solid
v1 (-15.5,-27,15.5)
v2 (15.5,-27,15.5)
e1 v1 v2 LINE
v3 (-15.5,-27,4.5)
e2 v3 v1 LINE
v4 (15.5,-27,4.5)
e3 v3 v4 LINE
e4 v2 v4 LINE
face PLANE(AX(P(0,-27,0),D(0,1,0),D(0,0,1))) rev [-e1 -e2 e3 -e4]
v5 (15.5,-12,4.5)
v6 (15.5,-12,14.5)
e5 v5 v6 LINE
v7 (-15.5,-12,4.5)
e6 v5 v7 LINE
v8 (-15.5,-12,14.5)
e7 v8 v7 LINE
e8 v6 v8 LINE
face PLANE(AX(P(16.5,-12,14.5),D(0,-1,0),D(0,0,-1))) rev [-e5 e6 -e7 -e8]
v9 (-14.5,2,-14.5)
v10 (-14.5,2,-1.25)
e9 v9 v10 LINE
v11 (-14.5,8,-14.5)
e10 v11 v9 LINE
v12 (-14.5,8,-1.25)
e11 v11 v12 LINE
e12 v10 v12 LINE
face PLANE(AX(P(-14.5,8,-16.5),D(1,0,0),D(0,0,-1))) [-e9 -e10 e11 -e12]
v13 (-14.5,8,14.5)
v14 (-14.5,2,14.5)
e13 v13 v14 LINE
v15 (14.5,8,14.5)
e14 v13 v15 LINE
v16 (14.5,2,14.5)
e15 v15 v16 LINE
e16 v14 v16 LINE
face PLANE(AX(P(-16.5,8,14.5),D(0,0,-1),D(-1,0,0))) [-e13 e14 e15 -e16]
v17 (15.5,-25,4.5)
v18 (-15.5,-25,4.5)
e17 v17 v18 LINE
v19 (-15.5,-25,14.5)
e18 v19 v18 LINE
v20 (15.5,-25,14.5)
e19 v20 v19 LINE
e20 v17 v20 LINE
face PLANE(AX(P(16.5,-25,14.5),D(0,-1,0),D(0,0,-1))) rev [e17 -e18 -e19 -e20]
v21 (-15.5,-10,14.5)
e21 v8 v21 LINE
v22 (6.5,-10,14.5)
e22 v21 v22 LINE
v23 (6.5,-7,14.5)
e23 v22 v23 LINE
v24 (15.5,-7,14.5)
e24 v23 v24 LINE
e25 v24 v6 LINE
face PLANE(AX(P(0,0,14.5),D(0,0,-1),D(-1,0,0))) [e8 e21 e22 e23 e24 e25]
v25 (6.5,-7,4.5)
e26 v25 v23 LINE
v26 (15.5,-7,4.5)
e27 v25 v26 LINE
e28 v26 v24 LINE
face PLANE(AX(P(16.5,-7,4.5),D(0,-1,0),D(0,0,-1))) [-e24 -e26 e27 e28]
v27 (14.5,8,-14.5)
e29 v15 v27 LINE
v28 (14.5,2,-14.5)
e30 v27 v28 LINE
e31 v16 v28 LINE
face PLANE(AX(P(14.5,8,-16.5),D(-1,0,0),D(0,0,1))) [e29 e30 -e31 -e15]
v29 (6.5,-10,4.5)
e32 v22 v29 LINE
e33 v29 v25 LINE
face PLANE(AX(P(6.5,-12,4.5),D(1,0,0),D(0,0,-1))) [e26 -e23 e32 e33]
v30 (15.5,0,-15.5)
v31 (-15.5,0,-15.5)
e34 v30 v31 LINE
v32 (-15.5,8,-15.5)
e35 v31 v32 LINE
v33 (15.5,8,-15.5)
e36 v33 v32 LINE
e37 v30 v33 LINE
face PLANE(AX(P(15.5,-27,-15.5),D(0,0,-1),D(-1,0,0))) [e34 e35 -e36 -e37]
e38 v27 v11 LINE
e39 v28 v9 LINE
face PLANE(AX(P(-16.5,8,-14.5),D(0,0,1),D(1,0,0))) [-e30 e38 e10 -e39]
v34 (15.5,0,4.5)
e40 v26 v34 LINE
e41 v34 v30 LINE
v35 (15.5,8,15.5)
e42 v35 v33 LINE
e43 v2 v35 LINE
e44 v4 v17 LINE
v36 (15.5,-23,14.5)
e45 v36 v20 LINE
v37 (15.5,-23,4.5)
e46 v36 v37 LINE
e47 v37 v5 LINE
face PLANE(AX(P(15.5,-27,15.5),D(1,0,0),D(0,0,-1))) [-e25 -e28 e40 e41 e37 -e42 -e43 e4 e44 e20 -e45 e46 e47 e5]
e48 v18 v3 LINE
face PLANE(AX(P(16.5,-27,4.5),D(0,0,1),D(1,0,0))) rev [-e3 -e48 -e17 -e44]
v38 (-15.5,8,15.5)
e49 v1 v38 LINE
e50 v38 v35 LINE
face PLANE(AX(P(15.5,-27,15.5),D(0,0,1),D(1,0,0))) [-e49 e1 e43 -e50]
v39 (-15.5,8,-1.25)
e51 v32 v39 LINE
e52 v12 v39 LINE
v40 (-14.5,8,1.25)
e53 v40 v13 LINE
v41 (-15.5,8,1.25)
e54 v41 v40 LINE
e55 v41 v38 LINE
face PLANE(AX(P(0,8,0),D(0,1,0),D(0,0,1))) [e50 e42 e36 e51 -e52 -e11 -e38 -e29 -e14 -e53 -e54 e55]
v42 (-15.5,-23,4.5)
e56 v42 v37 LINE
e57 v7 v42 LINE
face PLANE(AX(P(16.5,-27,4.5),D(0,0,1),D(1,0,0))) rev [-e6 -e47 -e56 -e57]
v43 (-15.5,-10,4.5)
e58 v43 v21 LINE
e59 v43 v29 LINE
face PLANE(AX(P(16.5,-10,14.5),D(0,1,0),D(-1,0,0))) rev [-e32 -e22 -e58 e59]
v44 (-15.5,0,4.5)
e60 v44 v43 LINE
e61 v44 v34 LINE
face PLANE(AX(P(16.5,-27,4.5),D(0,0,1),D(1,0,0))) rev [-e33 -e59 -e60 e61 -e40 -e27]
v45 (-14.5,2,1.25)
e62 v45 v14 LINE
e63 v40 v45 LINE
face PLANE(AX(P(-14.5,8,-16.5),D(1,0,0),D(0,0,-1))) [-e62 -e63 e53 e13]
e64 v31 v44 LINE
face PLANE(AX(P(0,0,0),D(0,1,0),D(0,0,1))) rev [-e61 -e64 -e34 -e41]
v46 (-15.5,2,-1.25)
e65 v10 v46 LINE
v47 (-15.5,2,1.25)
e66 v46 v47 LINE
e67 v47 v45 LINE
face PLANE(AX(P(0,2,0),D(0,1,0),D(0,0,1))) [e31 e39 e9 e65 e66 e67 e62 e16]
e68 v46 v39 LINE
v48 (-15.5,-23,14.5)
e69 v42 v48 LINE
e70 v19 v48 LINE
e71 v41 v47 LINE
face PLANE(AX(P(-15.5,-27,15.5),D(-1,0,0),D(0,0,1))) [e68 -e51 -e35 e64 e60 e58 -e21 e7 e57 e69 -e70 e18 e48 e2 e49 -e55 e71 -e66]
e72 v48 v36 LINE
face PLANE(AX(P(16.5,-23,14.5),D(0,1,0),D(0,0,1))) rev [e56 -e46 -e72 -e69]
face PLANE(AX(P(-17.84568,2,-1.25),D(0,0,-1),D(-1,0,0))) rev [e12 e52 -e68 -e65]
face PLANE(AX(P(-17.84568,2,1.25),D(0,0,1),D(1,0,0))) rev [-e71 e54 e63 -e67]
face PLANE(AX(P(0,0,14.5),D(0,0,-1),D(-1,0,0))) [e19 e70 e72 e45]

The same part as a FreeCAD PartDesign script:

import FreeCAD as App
import Part
import Sketcher
from FreeCAD import Vector
Q = App.Units.Quantity


def faces_at(feature, points):
    """Names of the faces that lie closest to the given points."""
    faces = feature.Shape.Faces
    near = lambda p: min(range(len(faces)), key=lambda i: faces[i].distToShape(Part.Vertex(*p))[0])
    return sorted({f"Face{near(p) + 1}" for p in points})


def add_polygon(sketch, points):
    """Adds a closed chain of lines whose ends are joined by coincident constraints."""
    first, n = sketch.GeometryCount, len(points)
    for a, b in zip(points, points[1:] + points[:1]):
        sketch.addGeometry(Part.LineSegment(App.Vector(*a, 0), App.Vector(*b, 0)), False)
    for i in range(n):
        sketch.addConstraint(Sketcher.Constraint("Coincident", first + i, 2, first + (i + 1) % n, 1))

doc = App.newDocument("Part")
body = doc.addObject("PartDesign::Body", "Body")

# Sketch on XZ plane
sketch1 = doc.addObject("Sketcher::SketchObject", "Sketch")
body.addObject(sketch1)
sketch1.AttachmentSupport = (doc.XZ_Plane, [""])
sketch1.MapMode = "FlatFace"
add_polygon(sketch1, [(-16.5, -16.5), (-16.5, 16.5), (16.5, 16.5), (16.5, -16.5)])  # lines 0-3
sketch1.addConstraint(Sketcher.Constraint("Vertical", 0))
sketch1.addConstraint(Sketcher.Constraint("Horizontal", 1))
sketch1.addConstraint(Sketcher.Constraint("Vertical", 2))
sketch1.addConstraint(Sketcher.Constraint("Horizontal", 3))
sketch1.addConstraint(Sketcher.Constraint("Symmetric", 0, 2, 2, 2, -1, 1))
sketch1.addConstraint(Sketcher.Constraint("Equal", 3, 0))
sketch1.addConstraint(Sketcher.Constraint("DistanceX", 1, 1, 1, 2, Q("33 mm")))
pad1 = doc.addObject("PartDesign::Pad", "Pad")
body.addObject(pad1)
pad1.Profile = sketch1
pad1.Length = 8
pad1.Reversed = True
doc.recompute()

thickness = doc.addObject("PartDesign::Thickness", "Thickness")
body.addObject(thickness)
thickness.Base = (pad1, faces_at(pad1, [(0, 8, 0)]))
thickness.Value = 2
thickness.Reversed = True
thickness.Join = "Intersection"

# Sketch on XZ plane
sketch2 = doc.addObject("Sketcher::SketchObject", "Sketch001")
body.addObject(sketch2)
sketch2.AttachmentSupport = (doc.XZ_Plane, [""])
sketch2.MapMode = "FlatFace"
sketch2.AttachmentOffset = App.Placement(Vector(0, 0, -8), App.Rotation())
add_polygon(sketch2, [(-17.84568, -1.25), (-17.84568, 1.25), (-13.423531, 1.25), (-13.423531, -1.25)])  # lines 0-3
sketch2.addConstraint(Sketcher.Constraint("Vertical", 0))
sketch2.addConstraint(Sketcher.Constraint("Horizontal", 1))
sketch2.addConstraint(Sketcher.Constraint("Vertical", 2))
sketch2.addConstraint(Sketcher.Constraint("Horizontal", 3))
sketch2.addConstraint(Sketcher.Constraint("DistanceY", 0, 1, 0, 2, Q("2.5 mm")))
sketch2.addConstraint(Sketcher.Constraint("DistanceY", -1, 1, 0, 2, Q("1.25 mm")))
sketch2.addConstraint(Sketcher.Constraint("DistanceX", 1, 1, 1, 2, Q("4.422149 mm")))
sketch2.addConstraint(Sketcher.Constraint("DistanceX", 0, 2, -1, 1, Q("17.84568 mm")))
pocket1 = doc.addObject("PartDesign::Pocket", "Pocket")
body.addObject(pocket1)
pocket1.Profile = sketch2
pocket1.Length = 6
pocket1.Reversed = True

# Sketch on XZ plane
sketch3 = doc.addObject("Sketcher::SketchObject", "Sketch002")
body.addObject(sketch3)
sketch3.AttachmentSupport = (doc.XZ_Plane, [""])
sketch3.MapMode = "FlatFace"
add_polygon(sketch3, [(-16.46505, 16.5), (-16.46505, 4.5), (16.5, 4.5), (16.5, 16.5)])  # lines 0-3
sketch3.addConstraint(Sketcher.Constraint("Vertical", 0))
sketch3.addConstraint(Sketcher.Constraint("Horizontal", 1))
sketch3.addConstraint(Sketcher.Constraint("Vertical", 2))
sketch3.addConstraint(Sketcher.Constraint("Horizontal", 3))
sketch3.addConstraint(Sketcher.Constraint("DistanceY", 0, 2, 0, 1, Q("12 mm")))
sketch3.addConstraint(Sketcher.Constraint("DistanceY", -1, 1, 0, 2, Q("4.5 mm")))
sketch3.addConstraint(Sketcher.Constraint("DistanceX", -1, 1, 1, 2, Q("16.5 mm")))
sketch3.addConstraint(Sketcher.Constraint("DistanceX", 1, 1, 1, 2, Q("32.96505 mm")))
pad2 = doc.addObject("PartDesign::Pad", "Pad001")
body.addObject(pad2)
pad2.Profile = sketch3
pad2.Length = 27

# Sketch on XY plane
sketch4 = doc.addObject("Sketcher::SketchObject", "Sketch003")
body.addObject(sketch4)
sketch4.AttachmentSupport = (doc.XY_Plane, [""])
sketch4.MapMode = "FlatFace"
sketch4.AttachmentOffset = App.Placement(Vector(0, 0, 4.5), App.Rotation())
add_polygon(sketch4, [(16.5, -23), (16.5, -25), (-16.46505, -25), (-16.46505, -23)])  # lines 0-3
add_polygon(sketch4, [(16.5, -10), (16.5, -12), (-16.46505, -12), (-16.46505, -10)])  # lines 4-7
sketch4.addConstraint(Sketcher.Constraint("Vertical", 0))
sketch4.addConstraint(Sketcher.Constraint("Horizontal", 1))
sketch4.addConstraint(Sketcher.Constraint("Vertical", 2))
sketch4.addConstraint(Sketcher.Constraint("Horizontal", 3))
sketch4.addConstraint(Sketcher.Constraint("Vertical", 4))
sketch4.addConstraint(Sketcher.Constraint("Horizontal", 5))
sketch4.addConstraint(Sketcher.Constraint("Vertical", 6))
sketch4.addConstraint(Sketcher.Constraint("Horizontal", 7))
sketch4.addConstraint(Sketcher.Constraint("Vertical", 3, 2, 4, 2))
sketch4.addConstraint(Sketcher.Constraint("Vertical", 2, 2, 5, 2))
sketch4.addConstraint(Sketcher.Constraint("Equal", 2, 4))
sketch4.addConstraint(Sketcher.Constraint("DistanceY", 0, 2, 0, 1, Q("2 mm")))
sketch4.addConstraint(Sketcher.Constraint("DistanceY", 0, 2, -1, 1, Q("25 mm")))
sketch4.addConstraint(Sketcher.Constraint("DistanceY", 4, 2, -1, 1, Q("12 mm")))
sketch4.addConstraint(Sketcher.Constraint("DistanceX", -1, 1, 0, 2, Q("16.5 mm")))
sketch4.addConstraint(Sketcher.Constraint("DistanceX", 1, 2, 1, 1, Q("32.96505 mm")))
pocket2 = doc.addObject("PartDesign::Pocket", "Pocket001")
body.addObject(pocket2)
pocket2.Profile = sketch4
pocket2.Length = 10
pocket2.Reversed = True

# Sketch on XY plane
sketch5 = doc.addObject("Sketcher::SketchObject", "Sketch004")
body.addObject(sketch5)
sketch5.AttachmentSupport = (doc.XY_Plane, [""])
sketch5.MapMode = "FlatFace"
sketch5.AttachmentOffset = App.Placement(Vector(0, 0, 14.5), App.Rotation())
add_polygon(sketch5, [(16.5, -7), (16.5, -12), (6.5, -12), (6.5, -7)])  # lines 0-3
sketch5.addConstraint(Sketcher.Constraint("Vertical", 0))
sketch5.addConstraint(Sketcher.Constraint("Horizontal", 1))
sketch5.addConstraint(Sketcher.Constraint("Vertical", 2))
sketch5.addConstraint(Sketcher.Constraint("Horizontal", 3))
sketch5.addConstraint(Sketcher.Constraint("DistanceX", 1, 2, 1, 1, Q("10 mm")))
sketch5.addConstraint(Sketcher.Constraint("DistanceY", 0, 2, 0, 1, Q("5 mm")))
sketch5.addConstraint(Sketcher.Constraint("DistanceY", 0, 2, -1, 1, Q("12 mm")))
sketch5.addConstraint(Sketcher.Constraint("DistanceX", -1, 1, 0, 2, Q("16.5 mm")))
pocket3 = doc.addObject("PartDesign::Pocket", "Pocket002")
body.addObject(pocket3)
pocket3.Profile = sketch5
pocket3.Length = 10

# Sketch on XZ plane
sketch6 = doc.addObject("Sketcher::SketchObject", "Sketch005")
body.addObject(sketch6)
sketch6.AttachmentSupport = (doc.XZ_Plane, [""])
sketch6.MapMode = "FlatFace"
sketch6.AttachmentOffset = App.Placement(Vector(0, 0, -8), App.Rotation())
add_polygon(sketch6, [(-16.5, -16.5), (-16.5, 16.5), (16.5, 16.5), (16.5, -16.5)])  # lines 0-3
add_polygon(sketch6, [(15.5, 15.5), (-15.5, 15.5), (-15.5, -15.5), (15.5, -15.5)])  # lines 4-7
sketch6.addConstraint(Sketcher.Constraint("Vertical", 0))
sketch6.addConstraint(Sketcher.Constraint("Horizontal", 1))
sketch6.addConstraint(Sketcher.Constraint("Vertical", 2))
sketch6.addConstraint(Sketcher.Constraint("Horizontal", 3))
sketch6.addConstraint(Sketcher.Constraint("Horizontal", 4))
sketch6.addConstraint(Sketcher.Constraint("Vertical", 5))
sketch6.addConstraint(Sketcher.Constraint("Horizontal", 6))
sketch6.addConstraint(Sketcher.Constraint("Vertical", 7))
sketch6.addConstraint(Sketcher.Constraint("Symmetric", 0, 2, 2, 2, -1, 1))
sketch6.addConstraint(Sketcher.Constraint("Symmetric", 4, 2, 6, 2, -1, 1))
sketch6.addConstraint(Sketcher.Constraint("Equal", 3, 0))
sketch6.addConstraint(Sketcher.Constraint("Equal", 6, 5))
sketch6.addConstraint(Sketcher.Constraint("DistanceX", 1, 1, 1, 2, Q("33 mm")))
sketch6.addConstraint(Sketcher.Constraint("DistanceX", 4, 2, 4, 1, Q("31 mm")))
pocket4 = doc.addObject("PartDesign::Pocket", "Pocket003")
body.addObject(pocket4)
pocket4.Profile = sketch6
pocket4.Type = "ThroughAll"
pocket4.Reversed = True

doc.recompute()
